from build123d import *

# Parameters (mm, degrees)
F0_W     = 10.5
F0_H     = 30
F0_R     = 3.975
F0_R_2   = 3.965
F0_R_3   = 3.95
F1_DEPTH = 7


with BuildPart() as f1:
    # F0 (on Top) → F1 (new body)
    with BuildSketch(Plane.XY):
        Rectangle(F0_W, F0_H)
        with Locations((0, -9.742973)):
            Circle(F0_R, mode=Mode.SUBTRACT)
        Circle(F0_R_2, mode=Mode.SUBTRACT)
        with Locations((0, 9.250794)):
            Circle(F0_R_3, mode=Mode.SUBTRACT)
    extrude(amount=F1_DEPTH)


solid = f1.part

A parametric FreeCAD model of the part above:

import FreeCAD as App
import Part
import Sketcher
Q = App.Units.Quantity

doc = App.newDocument("Part")
body = doc.addObject("PartDesign::Body", "Body")

# Sketch on XY plane
sketch1 = body.newObject("Sketcher::SketchObject", "Sketch")
sketch1.AttachmentSupport = (doc.getObject("XY_Plane"), [""])
sketch1.MapMode = "FlatFace"
sketch1.addGeometry(Part.LineSegment(App.Vector(-5.2, 15, 0), App.Vector(-5.2, -15, 0)), False)
sketch1.addGeometry(Part.LineSegment(App.Vector(-5.2, -15, 0), App.Vector(5.2, -15, 0)), False)
sketch1.addGeometry(Part.LineSegment(App.Vector(5.2, -15, 0), App.Vector(5.2, 15, 0)), False)
sketch1.addGeometry(Part.LineSegment(App.Vector(5.2, 15, 0), App.Vector(-5.2, 15, 0)), False)
sketch1.addGeometry(Part.Circle(App.Vector(0, -9.7, 0), App.Vector(0, 0, 1), 4), False)
sketch1.addGeometry(Part.Circle(App.Vector(0, 0, 0), App.Vector(0, 0, 1), 4), False)
sketch1.addGeometry(Part.Circle(App.Vector(0, 9.3, 0), App.Vector(0, 0, 1), 4), False)
sketch1.addConstraint(Sketcher.Constraint("Coincident", 0, 2, 1, 1))
sketch1.addConstraint(Sketcher.Constraint("Coincident", 1, 2, 2, 1))
sketch1.addConstraint(Sketcher.Constraint("Coincident", 2, 2, 3, 1))
sketch1.addConstraint(Sketcher.Constraint("Coincident", 3, 2, 0, 1))
sketch1.addConstraint(Sketcher.Constraint("Vertical", 0))
sketch1.addConstraint(Sketcher.Constraint("Horizontal", 1))
sketch1.addConstraint(Sketcher.Constraint("Vertical", 2))
sketch1.addConstraint(Sketcher.Constraint("Horizontal", 3))
sketch1.addConstraint(Sketcher.Constraint("Coincident", 5, 3, -1, 1))
sketch1.addConstraint(Sketcher.Constraint("Symmetric", 0, 2, 2, 2, -1, 1))
sketch1.addConstraint(Sketcher.Constraint("PointOnObject", 4, 3, -2))
sketch1.addConstraint(Sketcher.Constraint("PointOnObject", 6, 3, -2))
sketch1.addConstraint(Sketcher.Constraint("Diameter", 6, Q("7.9 mm")))
sketch1.addConstraint(Sketcher.Constraint("Diameter", 4, Q("7.95 mm")))
sketch1.addConstraint(Sketcher.Constraint("Diameter", 5, Q("7.93 mm")))
sketch1.addConstraint(Sketcher.Constraint("DistanceY", 0, 2, 0, 1, Q("30 mm")))
sketch1.addConstraint(Sketcher.Constraint("DistanceX", 1, 1, 1, 2, Q("10.5 mm")))
sketch1.addConstraint(Sketcher.Constraint("DistanceY", 4, 3, -1, 1, Q("9.742973 mm")))
sketch1.addConstraint(Sketcher.Constraint("DistanceY", -1, 1, 6, 3, Q("9.250794 mm")))
pad1 = body.newObject("PartDesign::Pad", "Pad")
pad1.Profile = sketch1
pad1.Length = 7

doc.recompute()
